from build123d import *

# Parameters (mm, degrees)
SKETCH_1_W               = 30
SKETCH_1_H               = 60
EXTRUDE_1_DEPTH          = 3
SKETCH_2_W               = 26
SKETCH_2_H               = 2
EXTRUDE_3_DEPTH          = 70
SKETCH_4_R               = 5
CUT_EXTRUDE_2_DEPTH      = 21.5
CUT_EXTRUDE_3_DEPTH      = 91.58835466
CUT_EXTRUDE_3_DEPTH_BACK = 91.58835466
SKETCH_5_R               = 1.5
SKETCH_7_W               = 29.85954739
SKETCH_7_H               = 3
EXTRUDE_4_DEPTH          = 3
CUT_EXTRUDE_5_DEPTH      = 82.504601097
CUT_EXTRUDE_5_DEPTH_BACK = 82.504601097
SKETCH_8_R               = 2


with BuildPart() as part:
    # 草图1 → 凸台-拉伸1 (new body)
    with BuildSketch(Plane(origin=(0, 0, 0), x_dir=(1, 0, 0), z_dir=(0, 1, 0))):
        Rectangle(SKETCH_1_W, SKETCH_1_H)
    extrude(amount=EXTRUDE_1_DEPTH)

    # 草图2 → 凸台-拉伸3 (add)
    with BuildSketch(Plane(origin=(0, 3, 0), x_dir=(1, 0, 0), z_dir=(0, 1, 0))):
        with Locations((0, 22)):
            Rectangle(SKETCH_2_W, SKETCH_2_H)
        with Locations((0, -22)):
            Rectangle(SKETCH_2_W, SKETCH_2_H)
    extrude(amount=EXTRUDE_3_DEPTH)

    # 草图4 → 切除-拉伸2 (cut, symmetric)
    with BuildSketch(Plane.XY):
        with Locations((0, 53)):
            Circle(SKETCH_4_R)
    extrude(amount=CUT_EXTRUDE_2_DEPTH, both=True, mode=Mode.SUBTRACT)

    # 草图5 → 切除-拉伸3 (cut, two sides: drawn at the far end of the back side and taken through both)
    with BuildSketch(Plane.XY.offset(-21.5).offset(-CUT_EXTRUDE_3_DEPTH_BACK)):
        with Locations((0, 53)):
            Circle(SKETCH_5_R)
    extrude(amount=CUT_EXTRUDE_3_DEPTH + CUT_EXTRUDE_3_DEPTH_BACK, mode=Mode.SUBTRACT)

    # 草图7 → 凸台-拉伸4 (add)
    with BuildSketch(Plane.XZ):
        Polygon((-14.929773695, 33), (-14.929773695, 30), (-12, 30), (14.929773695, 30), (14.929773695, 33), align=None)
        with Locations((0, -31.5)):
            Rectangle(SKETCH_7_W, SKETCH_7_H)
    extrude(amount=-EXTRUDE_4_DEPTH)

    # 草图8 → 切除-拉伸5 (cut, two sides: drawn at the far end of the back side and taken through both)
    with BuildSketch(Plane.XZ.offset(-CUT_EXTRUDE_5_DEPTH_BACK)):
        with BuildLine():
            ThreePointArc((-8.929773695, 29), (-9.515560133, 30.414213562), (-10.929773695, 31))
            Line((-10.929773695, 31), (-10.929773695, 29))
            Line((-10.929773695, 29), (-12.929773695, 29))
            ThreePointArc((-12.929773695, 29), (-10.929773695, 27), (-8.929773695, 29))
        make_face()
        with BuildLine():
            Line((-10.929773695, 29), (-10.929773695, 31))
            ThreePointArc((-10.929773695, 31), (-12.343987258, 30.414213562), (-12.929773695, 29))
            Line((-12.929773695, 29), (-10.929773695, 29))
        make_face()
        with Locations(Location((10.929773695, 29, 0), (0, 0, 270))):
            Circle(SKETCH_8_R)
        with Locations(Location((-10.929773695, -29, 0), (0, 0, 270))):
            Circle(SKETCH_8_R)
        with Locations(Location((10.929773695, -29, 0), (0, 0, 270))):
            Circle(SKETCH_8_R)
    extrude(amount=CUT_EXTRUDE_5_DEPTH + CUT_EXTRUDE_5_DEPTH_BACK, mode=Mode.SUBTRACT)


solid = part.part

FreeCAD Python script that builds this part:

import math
import FreeCAD as App
import Part
import Sketcher

V = App.Vector
Q = App.Units.Quantity


def add_polygon(sketch, points):
    """Adds a closed chain of lines whose ends are joined by coincident constraints."""
    first, n = sketch.GeometryCount, len(points)
    for a, b in zip(points, points[1:] + points[:1]):
        sketch.addGeometry(Part.LineSegment(App.Vector(*a, 0), App.Vector(*b, 0)), False)
    for i in range(n):
        sketch.addConstraint(Sketcher.Constraint("Coincident", first + i, 2, first + (i + 1) % n, 1))

doc = App.newDocument("Part")
params = doc.addObject("Spreadsheet::Sheet", "Params")
for row, (alias, value) in enumerate([
    ("sketch1_width", "30 mm"),
    ("sketch1_height", "60 mm"),
    ("pad1_length", "3 mm"),
    ("sketch2_width", "26 mm"),
    ("sketch2_height", "2 mm"),
    ("pad2_length", "70 mm"),
    ("sketch3_diameter", "10 mm"),
    ("pocket1_length", "43 mm"),
    ("sketch4_diameter", "3 mm"),
    ("sketch5_height", "3 mm"),
    ("pad3_length", "3 mm"),
    ("sketch6_diameter", "4 mm"),
], start=1):
    params.set(f"A{row}", alias)
    params.set(f"B{row}", "=" + value)
    params.setAlias(f"B{row}", alias)

body = doc.addObject("PartDesign::Body", "Body")

sketch1 = doc.addObject("Sketcher::SketchObject", "Sketch")
body.addObject(sketch1)
sketch1.AttachmentSupport = (doc.XZ_Plane, [""])
sketch1.MapMode = "FlatFace"
add_polygon(sketch1, [(-15, -30), (-15, 30), (15, 30), (15, -30)])
sketch1.addConstraint([
    Sketcher.Constraint("Vertical", 0),
    Sketcher.Constraint("Horizontal", 1),
    Sketcher.Constraint("Vertical", 2),
    Sketcher.Constraint("Horizontal", 3),
    Sketcher.Constraint("Symmetric", 0, 2, 2, 2, -1, 1),
    Sketcher.Constraint("DistanceX", 1, 1, 1, 2, Q("30 mm")),
    Sketcher.Constraint("DistanceY", 0, 1, 0, 2, Q("60 mm")),
])
sketch1.setExpression("Constraints[9]", "Params.sketch1_width")
sketch1.setExpression("Constraints[10]", "Params.sketch1_height")
pad1 = doc.addObject("PartDesign::Pad", "Pad")
body.addObject(pad1)
pad1.Profile = sketch1
pad1.setExpression("Length", "Params.pad1_length")
pad1.Reversed = True

sketch2 = doc.addObject("Sketcher::SketchObject", "Sketch001")
body.addObject(sketch2)
sketch2.AttachmentSupport = (doc.XZ_Plane, [""])
sketch2.MapMode = "FlatFace"
sketch2.AttachmentOffset = App.Placement(V(0, 0, -3), App.Rotation())
add_polygon(sketch2, [(-13, -23), (-13, -21), (13, -21), (13, -23)])
add_polygon(sketch2, [(-13, 21), (-13, 23), (13, 23), (13, 21)])
sketch2.addConstraint([
    Sketcher.Constraint("Vertical", 0),
    Sketcher.Constraint("Horizontal", 1),
    Sketcher.Constraint("Vertical", 2),
    Sketcher.Constraint("Horizontal", 3),
    Sketcher.Constraint("Vertical", 4),
    Sketcher.Constraint("Horizontal", 5),
    Sketcher.Constraint("Vertical", 6),
    Sketcher.Constraint("Horizontal", 7),
    Sketcher.Constraint("Symmetric", 2, 2, 4, 2, -1, 1),
    Sketcher.Constraint("Symmetric", 0, 2, 6, 2, -1, 1),
    Sketcher.Constraint("Vertical", 3, 2, 4, 2),
    Sketcher.Constraint("DistanceX", 1, 1, 1, 2, Q("26 mm")),
    Sketcher.Constraint("DistanceY", 0, 1, 0, 2, Q("2 mm")),
    Sketcher.Constraint("DistanceY", 0, 2, -1, 1, Q("21 mm")),
])
sketch2.setExpression("Constraints[19]", "Params.sketch2_width")
sketch2.setExpression("Constraints[20]", "Params.sketch2_height")
pad2 = doc.addObject("PartDesign::Pad", "Pad001")
body.addObject(pad2)
pad2.Profile = sketch2
pad2.setExpression("Length", "Params.pad2_length")
pad2.Reversed = True

sketch3 = doc.addObject("Sketcher::SketchObject", "Sketch002")
body.addObject(sketch3)
sketch3.AttachmentSupport = (doc.XY_Plane, [""])
sketch3.MapMode = "FlatFace"
sketch3.addGeometry(Part.Circle(V(0, 53, 0), V(0, 0, 1), 5), False)
sketch3.addConstraint([
    Sketcher.Constraint("PointOnObject", 0, 3, -2),
    Sketcher.Constraint("Diameter", 0, Q("10 mm")),
    Sketcher.Constraint("DistanceY", -1, 1, 0, 3, Q("53 mm")),
])
sketch3.setExpression("Constraints[1]", "Params.sketch3_diameter")
pocket1 = doc.addObject("PartDesign::Pocket", "Pocket")
body.addObject(pocket1)
pocket1.Profile = sketch3
pocket1.setExpression("Length", "Params.pocket1_length")
pocket1.Midplane = True

sketch4 = doc.addObject("Sketcher::SketchObject", "Sketch003")
body.addObject(sketch4)
sketch4.AttachmentSupport = (doc.XY_Plane, [""])
sketch4.MapMode = "FlatFace"
sketch4.AttachmentOffset = App.Placement(V(0, 0, -21.5), App.Rotation())
sketch4.addGeometry(Part.Circle(V(0, 53, 0), V(0, 0, 1), 1.5), False)
sketch4.addConstraint([
    Sketcher.Constraint("PointOnObject", 0, 3, -2),
    Sketcher.Constraint("Diameter", 0, Q("3 mm")),
    Sketcher.Constraint("DistanceY", -1, 1, 0, 3, Q("53 mm")),
])
sketch4.setExpression("Constraints[1]", "Params.sketch4_diameter")
pocket2 = doc.addObject("PartDesign::Pocket", "Pocket001")
body.addObject(pocket2)
pocket2.Profile = sketch4
pocket2.Type = "ThroughAll"
pocket2.Midplane = True

sketch5 = doc.addObject("Sketcher::SketchObject", "Sketch004")
body.addObject(sketch5)
sketch5.AttachmentSupport = (doc.XZ_Plane, [""])
sketch5.MapMode = "FlatFace"
add_polygon(sketch5, [(-14.929774, 33), (-14.929774, 30), (14.929774, 30), (14.929774, 33)])
add_polygon(sketch5, [(-14.929774, -30), (-14.929774, -33), (14.929774, -33), (14.929774, -30)])
sketch5.addConstraint([
    Sketcher.Constraint("Vertical", 0),
    Sketcher.Constraint("Horizontal", 1),
    Sketcher.Constraint("Vertical", 2),
    Sketcher.Constraint("Horizontal", 3),
    Sketcher.Constraint("Vertical", 4),
    Sketcher.Constraint("Horizontal", 5),
    Sketcher.Constraint("Vertical", 6),
    Sketcher.Constraint("Horizontal", 7),
    Sketcher.Constraint("Symmetric", 2, 2, 4, 2, -1, 1),
    Sketcher.Constraint("Symmetric", 0, 2, 6, 2, -1, 1),
    Sketcher.Constraint("Vertical", 3, 2, 4, 2),
    Sketcher.Constraint("DistanceY", 0, 2, 0, 1, Q("3 mm")),
    Sketcher.Constraint("DistanceY", -1, 1, 0, 2, Q("30 mm")),
    Sketcher.Constraint("DistanceX", 1, 1, 1, 2, Q("29.859547 mm")),
])
sketch5.setExpression("Constraints[19]", "Params.sketch5_height")
pad3 = doc.addObject("PartDesign::Pad", "Pad002")
body.addObject(pad3)
pad3.Profile = sketch5
pad3.setExpression("Length", "Params.pad3_length")
pad3.Reversed = True

sketch6 = doc.addObject("Sketcher::SketchObject", "Sketch005")
body.addObject(sketch6)
sketch6.AttachmentSupport = (doc.XZ_Plane, [""])
sketch6.MapMode = "FlatFace"
sketch6.addGeometry([
    Part.ArcOfCircle(Part.Circle(V(-10.929774, 29, 0), V(0, 0, 1), 2), math.radians(0), math.radians(90)),
    Part.ArcOfCircle(Part.Circle(V(-10.929774, 29, 0), V(0, 0, 1), 2), math.radians(90), math.radians(180)),
    Part.ArcOfCircle(Part.Circle(V(-10.929774, 29, 0), V(0, 0, 1), 2), math.radians(180), math.radians(360)),
    Part.Circle(V(10.929774, 29, 0), V(0, 0, 1), 2),
    Part.Circle(V(-10.929774, -29, 0), V(0, 0, 1), 2),
    Part.Circle(V(10.929774, -29, 0), V(0, 0, 1), 2),
], False)
sketch6.addConstraint([
    Sketcher.Constraint("Tangent", 0, 2, 1, 1),
    Sketcher.Constraint("Tangent", 1, 2, 2, 1),
    Sketcher.Constraint("Tangent", 2, 2, 0, 1),
    Sketcher.Constraint("Equal", 2, 3),
    Sketcher.Constraint("Equal", 3, 4),
    Sketcher.Constraint("Equal", 4, 5),
    Sketcher.Constraint("Symmetric", 3, 3, 4, 3, -1, 1),
    Sketcher.Constraint("Symmetric", 0, 3, 5, 3, -1, 1),
    Sketcher.Constraint("Symmetric", 0, 3, 3, 3, -2),
    Sketcher.Constraint("Horizontal", 3, 3, 1, 2),
    Sketcher.Constraint("Horizontal", 1, 2, 2, 2),
    Sketcher.Constraint("Vertical", 4, 3, 0, 2),
    Sketcher.Constraint("Diameter", 3, Q("4 mm")),
    Sketcher.Constraint("DistanceY", -1, 1, 0, 3, Q("29 mm")),
    Sketcher.Constraint("DistanceX", 0, 3, -1, 1, Q("10.929774 mm")),
])
sketch6.setExpression("Constraints[12]", "Params.sketch6_diameter")
pocket3 = doc.addObject("PartDesign::Pocket", "Pocket002")
body.addObject(pocket3)
pocket3.Profile = sketch6
pocket3.Type = "ThroughAll"
pocket3.Midplane = True

doc.recompute()
